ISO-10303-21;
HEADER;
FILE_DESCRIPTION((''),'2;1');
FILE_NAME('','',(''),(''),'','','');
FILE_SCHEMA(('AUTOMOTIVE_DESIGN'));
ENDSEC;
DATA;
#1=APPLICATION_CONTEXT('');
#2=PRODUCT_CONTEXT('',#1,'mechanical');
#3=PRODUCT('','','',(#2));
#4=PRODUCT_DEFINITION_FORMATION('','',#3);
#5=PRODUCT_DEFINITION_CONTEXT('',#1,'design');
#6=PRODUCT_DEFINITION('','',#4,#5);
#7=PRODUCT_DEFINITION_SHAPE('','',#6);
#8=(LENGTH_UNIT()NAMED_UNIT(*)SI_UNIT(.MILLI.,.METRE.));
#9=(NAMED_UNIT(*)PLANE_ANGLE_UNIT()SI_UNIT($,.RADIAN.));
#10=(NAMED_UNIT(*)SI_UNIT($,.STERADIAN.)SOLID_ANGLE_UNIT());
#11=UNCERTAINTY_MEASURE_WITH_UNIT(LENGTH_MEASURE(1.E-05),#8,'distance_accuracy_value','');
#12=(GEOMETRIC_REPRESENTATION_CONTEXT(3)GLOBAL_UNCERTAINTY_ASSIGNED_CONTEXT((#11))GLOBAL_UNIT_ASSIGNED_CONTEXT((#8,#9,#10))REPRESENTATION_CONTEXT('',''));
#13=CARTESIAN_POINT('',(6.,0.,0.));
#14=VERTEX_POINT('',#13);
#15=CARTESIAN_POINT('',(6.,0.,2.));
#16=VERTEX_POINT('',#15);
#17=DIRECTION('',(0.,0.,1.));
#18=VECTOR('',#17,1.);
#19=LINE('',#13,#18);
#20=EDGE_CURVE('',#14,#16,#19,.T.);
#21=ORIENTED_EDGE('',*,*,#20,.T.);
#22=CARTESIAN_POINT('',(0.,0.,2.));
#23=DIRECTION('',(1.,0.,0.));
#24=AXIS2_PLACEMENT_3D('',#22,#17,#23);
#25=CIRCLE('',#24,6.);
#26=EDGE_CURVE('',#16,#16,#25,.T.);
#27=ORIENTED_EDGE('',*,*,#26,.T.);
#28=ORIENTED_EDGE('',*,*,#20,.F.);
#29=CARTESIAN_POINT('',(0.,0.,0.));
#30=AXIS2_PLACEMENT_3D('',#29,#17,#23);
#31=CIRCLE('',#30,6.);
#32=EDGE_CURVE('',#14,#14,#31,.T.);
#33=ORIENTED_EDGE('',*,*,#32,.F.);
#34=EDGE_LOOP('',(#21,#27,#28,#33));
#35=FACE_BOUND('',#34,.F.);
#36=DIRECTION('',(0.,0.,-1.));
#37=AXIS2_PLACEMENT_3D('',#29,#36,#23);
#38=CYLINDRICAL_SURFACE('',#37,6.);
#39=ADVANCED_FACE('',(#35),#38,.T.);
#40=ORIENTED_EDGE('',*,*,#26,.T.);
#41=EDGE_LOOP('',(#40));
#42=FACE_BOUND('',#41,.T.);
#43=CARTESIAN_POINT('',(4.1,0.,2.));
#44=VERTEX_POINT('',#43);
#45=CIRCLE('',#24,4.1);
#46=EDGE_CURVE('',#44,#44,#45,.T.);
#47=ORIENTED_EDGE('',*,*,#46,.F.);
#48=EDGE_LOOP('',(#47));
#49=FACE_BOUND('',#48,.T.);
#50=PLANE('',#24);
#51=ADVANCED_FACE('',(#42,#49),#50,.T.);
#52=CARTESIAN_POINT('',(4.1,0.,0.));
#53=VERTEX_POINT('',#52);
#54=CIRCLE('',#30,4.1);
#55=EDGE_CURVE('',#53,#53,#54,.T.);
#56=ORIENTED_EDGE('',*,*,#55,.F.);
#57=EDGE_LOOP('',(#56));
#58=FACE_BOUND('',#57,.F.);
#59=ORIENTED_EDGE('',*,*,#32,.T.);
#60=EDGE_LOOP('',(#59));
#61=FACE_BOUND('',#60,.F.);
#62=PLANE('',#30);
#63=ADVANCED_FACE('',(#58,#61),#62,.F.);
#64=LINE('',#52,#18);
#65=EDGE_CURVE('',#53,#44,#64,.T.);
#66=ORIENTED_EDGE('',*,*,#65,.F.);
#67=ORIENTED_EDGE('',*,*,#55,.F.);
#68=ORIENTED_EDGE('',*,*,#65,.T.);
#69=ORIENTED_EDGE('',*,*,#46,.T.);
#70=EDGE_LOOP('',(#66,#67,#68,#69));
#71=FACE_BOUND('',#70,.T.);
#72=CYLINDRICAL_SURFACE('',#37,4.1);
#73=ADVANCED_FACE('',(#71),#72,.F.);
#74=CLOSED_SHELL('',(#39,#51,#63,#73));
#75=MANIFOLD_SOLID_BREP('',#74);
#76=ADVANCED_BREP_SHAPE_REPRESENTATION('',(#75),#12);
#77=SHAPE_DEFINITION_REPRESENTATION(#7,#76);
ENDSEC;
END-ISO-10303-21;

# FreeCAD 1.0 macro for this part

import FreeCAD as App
import Part
import Sketcher

V = App.Vector
Q = App.Units.Quantity

doc = App.newDocument("Part")
params = doc.addObject("Spreadsheet::Sheet", "Params")
for row, (alias, value) in enumerate([
    ("sketch1_diameter", "8.2 mm"),
    ("pad1_length", "2 mm"),
    ("sketch2_diameter", "12 mm"),
    ("pad2_length", "2 mm"),
], start=1):
    params.set(f"A{row}", alias)
    params.set(f"B{row}", "=" + value)
    params.setAlias(f"B{row}", alias)

body = doc.addObject("PartDesign::Body", "Body")

# Sketch on XY plane
sketch1 = body.newObject("Sketcher::SketchObject", "Sketch")
sketch1.AttachmentSupport = (doc.getObject("XY_Plane"), [""])
sketch1.MapMode = "FlatFace"
sketch1.addGeometry(Part.Circle(V(0, 0, 0), V(0, 0, 1), 4.1), False)
sketch1.addConstraint([
    Sketcher.Constraint("Coincident", 0, 3, -1, 1),
    Sketcher.Constraint("Diameter", 0, Q("8.2 mm")),
])
sketch1.setExpression("Constraints[1]", "Params.sketch1_diameter")
pad1 = body.newObject("PartDesign::Pad", "Pad")
pad1.Profile = sketch1
pad1.setExpression("Length", "Params.pad1_length")
body2 = doc.addObject("PartDesign::Body", "Body001")

# Sketch on XY plane
sketch2 = body2.newObject("Sketcher::SketchObject", "Sketch001")
sketch2.AttachmentSupport = (doc.getObject("XY_Plane001"), [""])
sketch2.MapMode = "FlatFace"
sketch2.addGeometry(Part.Circle(V(0, 0, 0), V(0, 0, 1), 6), False)
sketch2.addConstraint([
    Sketcher.Constraint("Coincident", 0, 3, -1, 1),
    Sketcher.Constraint("Diameter", 0, Q("12 mm")),
])
sketch2.setExpression("Constraints[1]", "Params.sketch2_diameter")
pad2 = body2.newObject("PartDesign::Pad", "Pad001")
pad2.Profile = sketch2
pad2.setExpression("Length", "Params.pad2_length")
doc.recompute()

boolean = body2.newObject("PartDesign::Boolean", "Boolean")
boolean.Type = "Cut"
boolean.addObjects([body])

doc.recompute()
